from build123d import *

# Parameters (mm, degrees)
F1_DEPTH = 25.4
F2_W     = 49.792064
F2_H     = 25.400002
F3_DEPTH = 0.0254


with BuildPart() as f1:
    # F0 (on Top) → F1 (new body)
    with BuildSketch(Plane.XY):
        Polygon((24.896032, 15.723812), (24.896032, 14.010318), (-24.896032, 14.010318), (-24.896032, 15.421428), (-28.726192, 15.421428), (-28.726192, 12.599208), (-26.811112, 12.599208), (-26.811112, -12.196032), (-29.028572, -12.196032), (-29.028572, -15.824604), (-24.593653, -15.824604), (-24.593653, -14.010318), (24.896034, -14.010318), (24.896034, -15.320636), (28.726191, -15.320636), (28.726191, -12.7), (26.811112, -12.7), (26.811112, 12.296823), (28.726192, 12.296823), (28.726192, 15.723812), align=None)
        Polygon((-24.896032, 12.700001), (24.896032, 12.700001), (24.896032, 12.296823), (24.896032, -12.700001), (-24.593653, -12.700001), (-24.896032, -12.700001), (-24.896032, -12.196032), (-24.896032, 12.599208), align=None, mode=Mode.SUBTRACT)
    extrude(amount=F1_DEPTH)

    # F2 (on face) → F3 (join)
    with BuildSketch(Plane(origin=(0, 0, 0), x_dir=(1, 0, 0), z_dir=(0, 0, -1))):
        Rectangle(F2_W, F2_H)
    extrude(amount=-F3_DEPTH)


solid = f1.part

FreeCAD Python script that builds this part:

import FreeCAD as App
import Part
import Sketcher

V = App.Vector
Q = App.Units.Quantity

doc = App.newDocument("Part")
body = doc.addObject("PartDesign::Body", "Body")

sketch1 = body.newObject("Sketcher::SketchObject", "Sketch")
sketch1.AttachmentSupport = (doc.getObject("XY_Plane"), [""])
sketch1.MapMode = "FlatFace"
sketch1.addGeometry(Part.LineSegment(V(24.9, 15.7, 0), V(24.9, 14, 0)), False)
sketch1.addGeometry(Part.LineSegment(V(24.9, 14, 0), V(-24.9, 14, 0)), False)
sketch1.addGeometry(Part.LineSegment(V(-24.9, 14, 0), V(-24.9, 15.4, 0)), False)
sketch1.addGeometry(Part.LineSegment(V(-24.9, 15.4, 0), V(-28.7, 15.4, 0)), False)
sketch1.addGeometry(Part.LineSegment(V(-28.7, 15.4, 0), V(-28.7, 12.6, 0)), False)
sketch1.addGeometry(Part.LineSegment(V(-28.7, 12.6, 0), V(-26.8, 12.6, 0)), False)
sketch1.addGeometry(Part.LineSegment(V(-26.8, 12.6, 0), V(-26.8, -12.2, 0)), False)
sketch1.addGeometry(Part.LineSegment(V(-26.8, -12.2, 0), V(-29, -12.2, 0)), False)
sketch1.addGeometry(Part.LineSegment(V(-29, -12.2, 0), V(-29, -15.8, 0)), False)
sketch1.addGeometry(Part.LineSegment(V(-29, -15.8, 0), V(-24.6, -15.8, 0)), False)
sketch1.addGeometry(Part.LineSegment(V(-24.6, -15.8, 0), V(-24.6, -14, 0)), False)
sketch1.addGeometry(Part.LineSegment(V(-24.6, -14, 0), V(24.9, -14, 0)), False)
sketch1.addGeometry(Part.LineSegment(V(24.9, -14, 0), V(24.9, -15.3, 0)), False)
sketch1.addGeometry(Part.LineSegment(V(24.9, -15.3, 0), V(28.7, -15.3, 0)), False)
sketch1.addGeometry(Part.LineSegment(V(28.7, -15.3, 0), V(28.7, -12.7, 0)), False)
sketch1.addGeometry(Part.LineSegment(V(28.7, -12.7, 0), V(26.8, -12.7, 0)), False)
sketch1.addGeometry(Part.LineSegment(V(26.8, -12.7, 0), V(26.8, 12.3, 0)), False)
sketch1.addGeometry(Part.LineSegment(V(26.8, 12.3, 0), V(28.7, 12.3, 0)), False)
sketch1.addGeometry(Part.LineSegment(V(28.7, 12.3, 0), V(28.7, 15.7, 0)), False)
sketch1.addGeometry(Part.LineSegment(V(28.7, 15.7, 0), V(24.9, 15.7, 0)), False)
sketch1.addGeometry(Part.LineSegment(V(-24.9, -12.7, 0), V(-24.9, 12.7, 0)), False)
sketch1.addGeometry(Part.LineSegment(V(-24.9, 12.7, 0), V(24.9, 12.7, 0)), False)
sketch1.addGeometry(Part.LineSegment(V(24.9, 12.7, 0), V(24.9, -12.7, 0)), False)
sketch1.addGeometry(Part.LineSegment(V(24.9, -12.7, 0), V(-24.9, -12.7, 0)), False)
sketch1.addConstraint(Sketcher.Constraint("Coincident", 0, 2, 1, 1))
sketch1.addConstraint(Sketcher.Constraint("Coincident", 1, 2, 2, 1))
sketch1.addConstraint(Sketcher.Constraint("Coincident", 2, 2, 3, 1))
sketch1.addConstraint(Sketcher.Constraint("Coincident", 3, 2, 4, 1))
sketch1.addConstraint(Sketcher.Constraint("Coincident", 4, 2, 5, 1))
sketch1.addConstraint(Sketcher.Constraint("Coincident", 5, 2, 6, 1))
sketch1.addConstraint(Sketcher.Constraint("Coincident", 6, 2, 7, 1))
sketch1.addConstraint(Sketcher.Constraint("Coincident", 7, 2, 8, 1))
sketch1.addConstraint(Sketcher.Constraint("Coincident", 8, 2, 9, 1))
sketch1.addConstraint(Sketcher.Constraint("Coincident", 9, 2, 10, 1))
sketch1.addConstraint(Sketcher.Constraint("Coincident", 10, 2, 11, 1))
sketch1.addConstraint(Sketcher.Constraint("Coincident", 11, 2, 12, 1))
sketch1.addConstraint(Sketcher.Constraint("Coincident", 12, 2, 13, 1))
sketch1.addConstraint(Sketcher.Constraint("Coincident", 13, 2, 14, 1))
sketch1.addConstraint(Sketcher.Constraint("Coincident", 14, 2, 15, 1))
sketch1.addConstraint(Sketcher.Constraint("Coincident", 15, 2, 16, 1))
sketch1.addConstraint(Sketcher.Constraint("Coincident", 16, 2, 17, 1))
sketch1.addConstraint(Sketcher.Constraint("Coincident", 17, 2, 18, 1))
sketch1.addConstraint(Sketcher.Constraint("Coincident", 18, 2, 19, 1))
sketch1.addConstraint(Sketcher.Constraint("Coincident", 19, 2, 0, 1))
sketch1.addConstraint(Sketcher.Constraint("Coincident", 20, 2, 21, 1))
sketch1.addConstraint(Sketcher.Constraint("Coincident", 21, 2, 22, 1))
sketch1.addConstraint(Sketcher.Constraint("Coincident", 22, 2, 23, 1))
sketch1.addConstraint(Sketcher.Constraint("Coincident", 23, 2, 20, 1))
sketch1.addConstraint(Sketcher.Constraint("Vertical", 0))
sketch1.addConstraint(Sketcher.Constraint("Horizontal", 1))
sketch1.addConstraint(Sketcher.Constraint("Vertical", 2))
sketch1.addConstraint(Sketcher.Constraint("Horizontal", 3))
sketch1.addConstraint(Sketcher.Constraint("Vertical", 4))
sketch1.addConstraint(Sketcher.Constraint("Horizontal", 5))
sketch1.addConstraint(Sketcher.Constraint("Vertical", 6))
sketch1.addConstraint(Sketcher.Constraint("Horizontal", 7))
sketch1.addConstraint(Sketcher.Constraint("Vertical", 8))
sketch1.addConstraint(Sketcher.Constraint("Horizontal", 9))
sketch1.addConstraint(Sketcher.Constraint("Vertical", 10))
sketch1.addConstraint(Sketcher.Constraint("Horizontal", 11))
sketch1.addConstraint(Sketcher.Constraint("Vertical", 12))
sketch1.addConstraint(Sketcher.Constraint("Horizontal", 13))
sketch1.addConstraint(Sketcher.Constraint("Vertical", 14))
sketch1.addConstraint(Sketcher.Constraint("Horizontal", 15))
sketch1.addConstraint(Sketcher.Constraint("Vertical", 16))
sketch1.addConstraint(Sketcher.Constraint("Horizontal", 17))
sketch1.addConstraint(Sketcher.Constraint("Vertical", 18))
sketch1.addConstraint(Sketcher.Constraint("Horizontal", 19))
sketch1.addConstraint(Sketcher.Constraint("Vertical", 20))
sketch1.addConstraint(Sketcher.Constraint("Horizontal", 21))
sketch1.addConstraint(Sketcher.Constraint("Vertical", 22))
sketch1.addConstraint(Sketcher.Constraint("Horizontal", 23))
sketch1.addConstraint(Sketcher.Constraint("Symmetric", 1, 2, 11, 2, -1, 1))
sketch1.addConstraint(Sketcher.Constraint("Symmetric", 20, 2, 22, 2, -1, 1))
sketch1.addConstraint(Sketcher.Constraint("Horizontal", 15, 2, 22, 2))
sketch1.addConstraint(Sketcher.Constraint("Vertical", 0, 2, 11, 2))
sketch1.addConstraint(Sketcher.Constraint("Vertical", 14, 2, 17, 2))
sketch1.addConstraint(Sketcher.Constraint("Vertical", 2, 2, 20, 2))
sketch1.addConstraint(Sketcher.Constraint("Equal", 5, 15))
sketch1.addConstraint(Sketcher.Constraint("Equal", 3, 19))
sketch1.addConstraint(Sketcher.Constraint("DistanceY", 20, 1, 20, 2, Q("1.0000001 in")))
sketch1.addConstraint(Sketcher.Constraint("DistanceX", 3, 2, 3, 1, Q("3.83016 mm")))
sketch1.addConstraint(Sketcher.Constraint("DistanceX", 5, 1, 5, 2, Q("1.91508 mm")))
sketch1.addConstraint(Sketcher.Constraint("DistanceX", 7, 2, 7, 1, Q("2.21746 mm")))
sketch1.addConstraint(Sketcher.Constraint("DistanceX", 9, 1, 9, 2, Q("4.434919 mm")))
sketch1.addConstraint(Sketcher.Constraint("DistanceY", 2, 1, 2, 2, Q("1.41111 mm")))
sketch1.addConstraint(Sketcher.Constraint("DistanceY", 4, 2, 4, 1, Q("2.82222 mm")))
sketch1.addConstraint(Sketcher.Constraint("DistanceY", 6, 2, 6, 1, Q("24.79524 mm")))
sketch1.addConstraint(Sketcher.Constraint("DistanceY", 12, 2, 12, 1, Q("1.310318 mm")))
sketch1.addConstraint(Sketcher.Constraint("DistanceY", 18, 1, 18, 2, Q("3.426989 mm")))
sketch1.addConstraint(Sketcher.Constraint("DistanceX", 1, 2, 1, 1, Q("49.792064 mm")))
sketch1.addConstraint(Sketcher.Constraint("DistanceY", 0, 2, 0, 1, Q("1.713494 mm")))
sketch1.addConstraint(Sketcher.Constraint("DistanceY", 8, 2, 8, 1, Q("3.628572 mm")))
sketch1.addConstraint(Sketcher.Constraint("DistanceY", 10, 1, 10, 2, Q("1.814286 mm")))
pad1 = body.newObject("PartDesign::Pad", "Pad")
pad1.Profile = sketch1
pad1.Length = Q("1 in")

sketch2 = body.newObject("Sketcher::SketchObject", "Sketch001")
sketch2.AttachmentSupport = (doc.getObject("XY_Plane"), [""])
sketch2.MapMode = "FlatFace"
sketch2.addGeometry(Part.LineSegment(V(-25, -13, 0), V(-25, 13, 0)), False)
sketch2.addGeometry(Part.LineSegment(V(-25, 13, 0), V(25, 13, 0)), False)
sketch2.addGeometry(Part.LineSegment(V(25, 13, 0), V(25, -13, 0)), False)
sketch2.addGeometry(Part.LineSegment(V(25, -13, 0), V(-25, -13, 0)), False)
sketch2.addConstraint(Sketcher.Constraint("Coincident", 0, 2, 1, 1))
sketch2.addConstraint(Sketcher.Constraint("Coincident", 1, 2, 2, 1))
sketch2.addConstraint(Sketcher.Constraint("Coincident", 2, 2, 3, 1))
sketch2.addConstraint(Sketcher.Constraint("Coincident", 3, 2, 0, 1))
sketch2.addConstraint(Sketcher.Constraint("Vertical", 0))
sketch2.addConstraint(Sketcher.Constraint("Horizontal", 1))
sketch2.addConstraint(Sketcher.Constraint("Vertical", 2))
sketch2.addConstraint(Sketcher.Constraint("Horizontal", 3))
sketch2.addConstraint(Sketcher.Constraint("Symmetric", 0, 2, 2, 2, -1, 1))
sketch2.addConstraint(Sketcher.Constraint("DistanceY", 0, 1, 0, 2, Q("1.0000001 in")))
sketch2.addConstraint(Sketcher.Constraint("DistanceX", 1, 1, 1, 2, Q("49.792064 mm")))
pad2 = body.newObject("PartDesign::Pad", "Pad001")
pad2.Profile = sketch2
pad2.Length = Q("0.001 in")

doc.recompute()
